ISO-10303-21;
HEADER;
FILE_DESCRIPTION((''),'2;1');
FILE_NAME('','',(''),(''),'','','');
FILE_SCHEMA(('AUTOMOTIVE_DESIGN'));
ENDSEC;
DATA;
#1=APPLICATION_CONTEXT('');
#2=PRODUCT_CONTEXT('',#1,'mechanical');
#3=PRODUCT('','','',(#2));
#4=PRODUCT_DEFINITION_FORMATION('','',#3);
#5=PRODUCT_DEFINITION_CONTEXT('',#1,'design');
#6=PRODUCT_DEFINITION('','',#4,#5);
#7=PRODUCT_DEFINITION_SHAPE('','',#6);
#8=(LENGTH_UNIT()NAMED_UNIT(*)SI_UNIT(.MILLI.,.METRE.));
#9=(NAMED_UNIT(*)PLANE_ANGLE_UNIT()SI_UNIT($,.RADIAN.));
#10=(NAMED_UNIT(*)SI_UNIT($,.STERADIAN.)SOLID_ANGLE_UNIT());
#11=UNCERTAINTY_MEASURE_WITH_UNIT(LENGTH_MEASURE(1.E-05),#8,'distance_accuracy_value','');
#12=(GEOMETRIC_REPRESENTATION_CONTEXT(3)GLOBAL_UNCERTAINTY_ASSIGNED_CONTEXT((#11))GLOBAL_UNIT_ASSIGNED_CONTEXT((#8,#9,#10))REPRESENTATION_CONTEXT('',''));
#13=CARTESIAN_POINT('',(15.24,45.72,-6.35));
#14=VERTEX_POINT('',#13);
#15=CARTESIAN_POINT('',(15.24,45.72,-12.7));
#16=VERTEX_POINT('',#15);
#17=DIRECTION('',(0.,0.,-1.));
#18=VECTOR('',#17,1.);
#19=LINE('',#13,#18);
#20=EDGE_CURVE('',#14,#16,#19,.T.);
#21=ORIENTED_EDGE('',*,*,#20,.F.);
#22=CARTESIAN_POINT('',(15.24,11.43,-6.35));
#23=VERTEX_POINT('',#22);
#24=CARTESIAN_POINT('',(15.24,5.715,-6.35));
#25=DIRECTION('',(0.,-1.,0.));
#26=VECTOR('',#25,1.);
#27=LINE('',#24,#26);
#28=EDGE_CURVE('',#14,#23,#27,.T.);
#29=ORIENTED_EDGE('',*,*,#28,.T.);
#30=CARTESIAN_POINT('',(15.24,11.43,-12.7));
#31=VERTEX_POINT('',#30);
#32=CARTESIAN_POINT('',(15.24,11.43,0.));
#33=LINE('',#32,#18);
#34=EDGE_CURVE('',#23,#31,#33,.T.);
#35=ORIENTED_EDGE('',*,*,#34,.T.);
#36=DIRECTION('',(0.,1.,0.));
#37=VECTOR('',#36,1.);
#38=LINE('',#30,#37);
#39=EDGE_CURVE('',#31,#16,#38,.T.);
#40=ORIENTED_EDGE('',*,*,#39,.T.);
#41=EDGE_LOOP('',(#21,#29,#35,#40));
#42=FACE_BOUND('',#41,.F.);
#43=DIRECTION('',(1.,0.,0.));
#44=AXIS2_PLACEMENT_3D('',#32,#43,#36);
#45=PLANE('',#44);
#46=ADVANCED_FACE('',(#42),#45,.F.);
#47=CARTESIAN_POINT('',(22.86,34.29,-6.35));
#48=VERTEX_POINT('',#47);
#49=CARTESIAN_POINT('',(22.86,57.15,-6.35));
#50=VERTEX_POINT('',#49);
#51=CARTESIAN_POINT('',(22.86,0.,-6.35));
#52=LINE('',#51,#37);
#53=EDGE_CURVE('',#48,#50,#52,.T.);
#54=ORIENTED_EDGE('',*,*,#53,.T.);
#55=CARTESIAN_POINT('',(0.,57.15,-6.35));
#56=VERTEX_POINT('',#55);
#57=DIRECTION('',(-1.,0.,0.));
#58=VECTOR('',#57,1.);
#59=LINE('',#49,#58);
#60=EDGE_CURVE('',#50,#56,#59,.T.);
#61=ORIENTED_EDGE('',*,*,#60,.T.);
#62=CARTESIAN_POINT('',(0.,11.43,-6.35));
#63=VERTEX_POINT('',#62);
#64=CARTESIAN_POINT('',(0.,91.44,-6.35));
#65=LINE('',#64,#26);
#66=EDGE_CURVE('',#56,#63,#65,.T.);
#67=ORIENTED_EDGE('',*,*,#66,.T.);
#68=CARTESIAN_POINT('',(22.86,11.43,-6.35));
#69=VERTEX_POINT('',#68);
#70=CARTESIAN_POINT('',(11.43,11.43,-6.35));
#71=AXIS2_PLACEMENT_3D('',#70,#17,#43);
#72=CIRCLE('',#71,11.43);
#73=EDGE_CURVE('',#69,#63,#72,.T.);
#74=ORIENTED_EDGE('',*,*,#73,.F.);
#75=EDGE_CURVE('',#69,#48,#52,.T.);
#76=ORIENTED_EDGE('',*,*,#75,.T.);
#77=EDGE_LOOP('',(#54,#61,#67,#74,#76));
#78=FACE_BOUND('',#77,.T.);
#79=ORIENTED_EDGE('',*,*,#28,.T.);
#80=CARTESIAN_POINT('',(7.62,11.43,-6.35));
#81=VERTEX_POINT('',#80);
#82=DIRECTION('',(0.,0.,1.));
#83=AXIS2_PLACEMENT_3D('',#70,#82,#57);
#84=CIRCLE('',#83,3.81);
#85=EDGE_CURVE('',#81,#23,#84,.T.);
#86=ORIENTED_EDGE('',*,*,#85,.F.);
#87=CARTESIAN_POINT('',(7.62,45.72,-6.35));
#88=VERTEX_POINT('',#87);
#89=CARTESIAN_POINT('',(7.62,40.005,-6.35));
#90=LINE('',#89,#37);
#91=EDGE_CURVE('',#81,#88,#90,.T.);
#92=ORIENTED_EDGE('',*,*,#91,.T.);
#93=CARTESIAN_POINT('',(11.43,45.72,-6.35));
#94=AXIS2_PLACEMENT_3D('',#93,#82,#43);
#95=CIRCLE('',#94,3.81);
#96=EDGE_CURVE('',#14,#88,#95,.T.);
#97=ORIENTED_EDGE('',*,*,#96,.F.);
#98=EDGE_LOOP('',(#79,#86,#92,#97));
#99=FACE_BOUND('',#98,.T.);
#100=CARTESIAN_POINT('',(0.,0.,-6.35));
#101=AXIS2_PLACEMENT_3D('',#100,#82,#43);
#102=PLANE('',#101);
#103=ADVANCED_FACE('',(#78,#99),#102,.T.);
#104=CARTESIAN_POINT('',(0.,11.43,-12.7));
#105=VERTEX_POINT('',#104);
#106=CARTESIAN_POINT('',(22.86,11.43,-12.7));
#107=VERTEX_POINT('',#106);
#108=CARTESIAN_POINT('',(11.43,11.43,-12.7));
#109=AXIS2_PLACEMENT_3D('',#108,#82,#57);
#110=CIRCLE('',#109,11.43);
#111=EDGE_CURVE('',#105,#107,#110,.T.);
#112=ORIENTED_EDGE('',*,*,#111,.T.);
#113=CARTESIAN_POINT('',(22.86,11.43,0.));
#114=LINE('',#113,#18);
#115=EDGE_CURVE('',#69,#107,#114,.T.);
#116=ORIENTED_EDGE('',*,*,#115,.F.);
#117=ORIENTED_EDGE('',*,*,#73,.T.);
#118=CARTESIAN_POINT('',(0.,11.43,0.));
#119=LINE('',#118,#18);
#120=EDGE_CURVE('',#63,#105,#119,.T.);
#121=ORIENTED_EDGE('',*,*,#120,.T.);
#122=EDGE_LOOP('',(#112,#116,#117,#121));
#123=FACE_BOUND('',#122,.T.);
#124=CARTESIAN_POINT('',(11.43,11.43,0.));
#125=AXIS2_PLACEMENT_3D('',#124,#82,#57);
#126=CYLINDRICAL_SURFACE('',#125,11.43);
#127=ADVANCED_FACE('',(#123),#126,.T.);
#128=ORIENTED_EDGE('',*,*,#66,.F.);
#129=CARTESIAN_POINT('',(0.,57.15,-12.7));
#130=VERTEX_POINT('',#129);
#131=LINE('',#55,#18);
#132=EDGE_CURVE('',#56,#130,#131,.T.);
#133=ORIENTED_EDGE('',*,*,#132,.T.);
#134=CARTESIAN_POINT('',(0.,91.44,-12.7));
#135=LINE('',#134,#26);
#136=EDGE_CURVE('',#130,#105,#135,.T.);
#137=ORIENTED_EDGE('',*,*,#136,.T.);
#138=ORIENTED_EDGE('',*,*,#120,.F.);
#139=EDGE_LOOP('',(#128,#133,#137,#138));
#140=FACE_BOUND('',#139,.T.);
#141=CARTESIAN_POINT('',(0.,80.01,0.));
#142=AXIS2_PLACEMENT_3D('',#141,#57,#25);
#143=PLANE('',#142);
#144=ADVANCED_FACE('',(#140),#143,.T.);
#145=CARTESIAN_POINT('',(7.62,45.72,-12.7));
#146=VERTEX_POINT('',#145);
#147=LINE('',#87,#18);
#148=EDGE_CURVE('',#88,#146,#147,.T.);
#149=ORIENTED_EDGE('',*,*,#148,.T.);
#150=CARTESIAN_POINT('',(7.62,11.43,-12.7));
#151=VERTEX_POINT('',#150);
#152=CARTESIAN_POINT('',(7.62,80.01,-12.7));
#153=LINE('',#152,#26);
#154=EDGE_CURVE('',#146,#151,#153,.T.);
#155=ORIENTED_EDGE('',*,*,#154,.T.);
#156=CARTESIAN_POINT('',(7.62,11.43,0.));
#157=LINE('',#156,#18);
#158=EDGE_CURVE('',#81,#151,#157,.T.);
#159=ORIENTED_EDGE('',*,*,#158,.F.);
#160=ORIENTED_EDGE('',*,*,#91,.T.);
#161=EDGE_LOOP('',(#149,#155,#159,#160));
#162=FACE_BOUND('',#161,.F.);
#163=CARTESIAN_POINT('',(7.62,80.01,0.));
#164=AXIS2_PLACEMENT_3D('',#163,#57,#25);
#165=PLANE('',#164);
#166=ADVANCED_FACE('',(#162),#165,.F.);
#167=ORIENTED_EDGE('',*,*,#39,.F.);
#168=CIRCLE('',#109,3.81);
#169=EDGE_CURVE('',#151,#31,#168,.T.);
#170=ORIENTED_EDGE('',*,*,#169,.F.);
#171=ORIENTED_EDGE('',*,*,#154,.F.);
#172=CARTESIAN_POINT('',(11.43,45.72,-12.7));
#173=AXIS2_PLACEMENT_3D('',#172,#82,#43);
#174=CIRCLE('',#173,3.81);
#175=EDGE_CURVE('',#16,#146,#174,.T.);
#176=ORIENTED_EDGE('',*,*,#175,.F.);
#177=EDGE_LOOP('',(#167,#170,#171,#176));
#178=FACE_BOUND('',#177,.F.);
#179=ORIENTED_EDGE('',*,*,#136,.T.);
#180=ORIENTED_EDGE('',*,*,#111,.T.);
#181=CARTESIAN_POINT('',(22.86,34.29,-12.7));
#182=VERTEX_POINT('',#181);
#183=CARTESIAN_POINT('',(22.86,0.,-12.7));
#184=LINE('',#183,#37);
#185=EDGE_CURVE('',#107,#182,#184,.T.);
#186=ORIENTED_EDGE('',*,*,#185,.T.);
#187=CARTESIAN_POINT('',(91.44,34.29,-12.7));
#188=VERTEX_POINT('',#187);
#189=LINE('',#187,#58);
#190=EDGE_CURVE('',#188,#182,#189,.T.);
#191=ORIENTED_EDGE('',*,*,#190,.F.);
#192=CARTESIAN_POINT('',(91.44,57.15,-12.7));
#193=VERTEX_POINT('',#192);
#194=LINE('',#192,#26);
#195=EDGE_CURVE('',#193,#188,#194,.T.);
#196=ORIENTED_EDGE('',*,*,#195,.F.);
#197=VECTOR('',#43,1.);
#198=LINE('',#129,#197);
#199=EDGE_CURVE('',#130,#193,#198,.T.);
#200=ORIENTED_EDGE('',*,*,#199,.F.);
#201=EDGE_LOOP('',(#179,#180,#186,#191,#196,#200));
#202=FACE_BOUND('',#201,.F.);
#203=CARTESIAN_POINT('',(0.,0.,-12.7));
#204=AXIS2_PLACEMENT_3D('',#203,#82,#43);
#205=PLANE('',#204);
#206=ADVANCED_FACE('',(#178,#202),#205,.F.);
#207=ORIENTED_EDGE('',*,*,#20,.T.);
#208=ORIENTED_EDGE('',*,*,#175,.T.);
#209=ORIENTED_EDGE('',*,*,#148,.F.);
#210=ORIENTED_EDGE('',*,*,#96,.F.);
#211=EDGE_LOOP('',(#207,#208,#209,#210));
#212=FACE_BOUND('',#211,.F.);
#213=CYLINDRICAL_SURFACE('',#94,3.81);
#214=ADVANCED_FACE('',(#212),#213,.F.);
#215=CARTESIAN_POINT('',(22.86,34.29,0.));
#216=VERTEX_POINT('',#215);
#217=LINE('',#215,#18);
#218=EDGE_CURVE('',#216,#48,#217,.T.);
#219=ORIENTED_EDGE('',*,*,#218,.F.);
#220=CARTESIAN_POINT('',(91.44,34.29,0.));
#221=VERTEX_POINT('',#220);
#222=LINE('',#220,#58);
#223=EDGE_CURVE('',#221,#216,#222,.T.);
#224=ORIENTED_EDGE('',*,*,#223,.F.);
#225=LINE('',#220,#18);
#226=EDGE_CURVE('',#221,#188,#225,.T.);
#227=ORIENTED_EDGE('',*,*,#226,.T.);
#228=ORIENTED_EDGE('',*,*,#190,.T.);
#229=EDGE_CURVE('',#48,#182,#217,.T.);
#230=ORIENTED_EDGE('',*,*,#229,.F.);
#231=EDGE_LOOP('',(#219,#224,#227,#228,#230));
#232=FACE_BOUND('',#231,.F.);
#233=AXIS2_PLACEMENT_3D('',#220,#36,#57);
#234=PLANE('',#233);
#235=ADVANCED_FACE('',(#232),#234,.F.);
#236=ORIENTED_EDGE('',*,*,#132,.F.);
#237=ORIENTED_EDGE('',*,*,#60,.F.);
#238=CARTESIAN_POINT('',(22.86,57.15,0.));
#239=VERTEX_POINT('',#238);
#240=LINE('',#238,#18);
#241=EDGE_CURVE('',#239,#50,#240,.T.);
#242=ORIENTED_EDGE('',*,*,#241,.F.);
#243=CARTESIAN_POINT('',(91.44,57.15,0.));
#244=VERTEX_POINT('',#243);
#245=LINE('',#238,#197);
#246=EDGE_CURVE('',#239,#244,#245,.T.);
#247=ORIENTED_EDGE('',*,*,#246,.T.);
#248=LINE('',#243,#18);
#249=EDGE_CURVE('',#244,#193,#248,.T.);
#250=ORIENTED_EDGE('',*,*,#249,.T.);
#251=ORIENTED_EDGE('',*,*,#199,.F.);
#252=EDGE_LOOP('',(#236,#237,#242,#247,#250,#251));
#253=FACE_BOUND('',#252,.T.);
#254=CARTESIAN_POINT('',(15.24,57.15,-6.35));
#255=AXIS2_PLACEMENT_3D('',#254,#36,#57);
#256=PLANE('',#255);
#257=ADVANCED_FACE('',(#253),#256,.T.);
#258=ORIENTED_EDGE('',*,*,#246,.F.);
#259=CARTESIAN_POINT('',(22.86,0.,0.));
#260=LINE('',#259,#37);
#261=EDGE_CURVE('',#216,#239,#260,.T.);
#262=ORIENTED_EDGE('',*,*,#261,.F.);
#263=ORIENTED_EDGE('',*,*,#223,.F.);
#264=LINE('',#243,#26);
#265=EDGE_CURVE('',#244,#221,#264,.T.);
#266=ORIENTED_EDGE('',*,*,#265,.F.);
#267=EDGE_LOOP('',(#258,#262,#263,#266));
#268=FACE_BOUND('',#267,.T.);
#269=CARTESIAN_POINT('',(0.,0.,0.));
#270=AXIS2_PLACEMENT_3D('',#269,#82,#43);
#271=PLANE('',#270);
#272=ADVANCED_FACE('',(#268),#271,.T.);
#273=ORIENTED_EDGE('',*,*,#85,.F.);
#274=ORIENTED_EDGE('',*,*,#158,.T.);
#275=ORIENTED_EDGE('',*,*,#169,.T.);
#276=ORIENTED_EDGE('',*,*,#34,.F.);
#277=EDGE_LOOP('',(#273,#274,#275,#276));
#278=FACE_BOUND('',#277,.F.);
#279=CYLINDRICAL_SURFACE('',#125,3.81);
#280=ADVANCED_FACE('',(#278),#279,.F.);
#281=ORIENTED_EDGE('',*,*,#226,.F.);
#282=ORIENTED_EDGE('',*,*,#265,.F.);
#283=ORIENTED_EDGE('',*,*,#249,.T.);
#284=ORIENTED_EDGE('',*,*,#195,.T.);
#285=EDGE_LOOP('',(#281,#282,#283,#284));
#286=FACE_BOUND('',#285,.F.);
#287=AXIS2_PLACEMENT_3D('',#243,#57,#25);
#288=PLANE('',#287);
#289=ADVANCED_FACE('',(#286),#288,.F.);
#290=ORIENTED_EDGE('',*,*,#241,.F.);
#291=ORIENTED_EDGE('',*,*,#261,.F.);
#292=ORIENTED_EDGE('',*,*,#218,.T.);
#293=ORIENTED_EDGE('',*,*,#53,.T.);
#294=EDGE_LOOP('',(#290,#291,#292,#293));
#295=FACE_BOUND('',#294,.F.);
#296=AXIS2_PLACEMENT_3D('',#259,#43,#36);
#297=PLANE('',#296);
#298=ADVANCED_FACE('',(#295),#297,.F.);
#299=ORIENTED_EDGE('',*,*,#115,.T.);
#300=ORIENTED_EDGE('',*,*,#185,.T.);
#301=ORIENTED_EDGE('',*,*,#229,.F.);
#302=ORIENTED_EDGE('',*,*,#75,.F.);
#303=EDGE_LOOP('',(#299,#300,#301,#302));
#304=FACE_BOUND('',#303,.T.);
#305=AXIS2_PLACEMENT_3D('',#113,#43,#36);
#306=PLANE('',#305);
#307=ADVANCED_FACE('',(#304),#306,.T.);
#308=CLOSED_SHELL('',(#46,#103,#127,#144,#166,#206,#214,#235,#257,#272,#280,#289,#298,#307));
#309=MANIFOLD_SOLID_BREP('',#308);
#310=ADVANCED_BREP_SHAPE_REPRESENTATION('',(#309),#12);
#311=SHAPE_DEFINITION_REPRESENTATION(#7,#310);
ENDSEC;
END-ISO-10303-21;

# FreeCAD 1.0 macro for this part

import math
import FreeCAD as App
import Part
import Sketcher
from FreeCAD import Vector
Q = App.Units.Quantity

doc = App.newDocument("Part")
params = doc.addObject("Spreadsheet::Sheet", "Params")
for row, (alias, value) in enumerate([
    ("sketch1_radius", "0.45 in"),
    ("sketch1_radius2", "0.15 in"),
    ("sketch1_width", "2.7 in"),
    ("pad1_length", "0.5 in"),
    ("sketch2_radius", "0.45 in"),
    ("sketch2_height", "3.15 in"),
    ("pocket1_length", "0.25 in"),
    ("sketch3_radius", "0.45 in"),
    ("pocket2_length", "3.5 in"),
    ("sketch4_radius", "0.15 in"),
    ("sketch4_height", "0.45 in"),
    ("pad2_length", "0.25 in"),
], start=1):
    params.set(f"A{row}", alias)
    params.set(f"B{row}", "=" + value)
    params.setAlias(f"B{row}", alias)

body = doc.addObject("PartDesign::Body", "Body")

# Sketch on XY plane
sketch1 = body.newObject("Sketcher::SketchObject", "Sketch")
sketch1.AttachmentSupport = (doc.getObject("XY_Plane"), [""])
sketch1.MapMode = "FlatFace"
sketch1.addGeometry([
    Part.ArcOfCircle(Part.Circle(Vector(11.43, 11.43, 0), Vector(0, 0, 1), 11.43), math.radians(180), math.radians(360)),  # 0
    Part.LineSegment(Vector(22.86, 11.43, 0), Vector(22.86, 34.29, 0)),  # 1
    Part.LineSegment(Vector(22.86, 34.29, 0), Vector(91.44, 34.29, 0)),  # 2
    Part.LineSegment(Vector(91.44, 34.29, 0), Vector(91.44, 57.15, 0)),  # 3
    Part.LineSegment(Vector(91.44, 57.15, 0), Vector(22.86, 57.15, 0)),  # 4
    Part.LineSegment(Vector(22.86, 57.15, 0), Vector(22.86, 80.01, 0)),  # 5
    Part.ArcOfCircle(Part.Circle(Vector(11.43, 80.01, 0), Vector(0, 0, 1), 11.43), math.radians(0), math.radians(180)),  # 6
    Part.LineSegment(Vector(0, 80.01, 0), Vector(0, 11.43, 0)),  # 7
    Part.LineSegment(Vector(7.62, 11.43, 0), Vector(7.62, 80.01, 0)),  # 8
    Part.ArcOfCircle(Part.Circle(Vector(11.43, 80.01, 0), Vector(0, 0, 1), 3.81), math.radians(0), math.radians(180)),  # 9
    Part.LineSegment(Vector(15.24, 80.01, 0), Vector(15.24, 11.43, 0)),  # 10
    Part.ArcOfCircle(Part.Circle(Vector(11.43, 11.43, 0), Vector(0, 0, 1), 3.81), math.radians(180), math.radians(360)),  # 11
], False)
sketch1.addConstraint([
    Sketcher.Constraint("Tangent", 0, 2, 1, 1),
    Sketcher.Constraint("Coincident", 1, 2, 2, 1),
    Sketcher.Constraint("Coincident", 2, 2, 3, 1),
    Sketcher.Constraint("Coincident", 3, 2, 4, 1),
    Sketcher.Constraint("Coincident", 4, 2, 5, 1),
    Sketcher.Constraint("Tangent", 5, 2, 6, 1),
    Sketcher.Constraint("Tangent", 6, 2, 7, 1),
    Sketcher.Constraint("Tangent", 7, 2, 0, 1),
    Sketcher.Constraint("Tangent", 8, 2, 9, 2),
    Sketcher.Constraint("Tangent", 9, 1, 10, 1),
    Sketcher.Constraint("Tangent", 10, 2, 11, 2),
    Sketcher.Constraint("Tangent", 11, 1, 8, 1),
    Sketcher.Constraint("Vertical", 1),
    Sketcher.Constraint("Horizontal", 2),
    Sketcher.Constraint("Vertical", 3),
    Sketcher.Constraint("Horizontal", 4),
    Sketcher.Constraint("Vertical", 5),
    Sketcher.Constraint("Vertical", 7),
    Sketcher.Constraint("Vertical", 8),
    Sketcher.Constraint("Vertical", 10),
    Sketcher.Constraint("Coincident", 9, 3, 6, 3),
    Sketcher.Constraint("Coincident", 11, 3, 0, 3),
    Sketcher.Constraint("PointOnObject", 6, 2, -2),
    Sketcher.Constraint("Equal", 1, 3),
    Sketcher.Constraint("Equal", 3, 5),
    Sketcher.Constraint("Equal", 4, 7),
    Sketcher.Constraint("Radius", 0, Q("0.45 in")),
    Sketcher.Constraint("Radius", 9, Q("0.15 in")),
    Sketcher.Constraint("DistanceX", 2, 1, 2, 2, Q("2.7 in")),
    Sketcher.Constraint("DistanceY", -1, 1, 0, 3, Q("0.45 in")),
])
sketch1.setExpression("Constraints[26]", "Params.sketch1_radius")
sketch1.setExpression("Constraints[27]", "Params.sketch1_radius2")
sketch1.setExpression("Constraints[28]", "Params.sketch1_width")
pad1 = body.newObject("PartDesign::Pad", "Pad")
pad1.Profile = sketch1
pad1.setExpression("Length", "Params.pad1_length")
pad1.Reversed = True

# Sketch on XY plane
sketch2 = body.newObject("Sketcher::SketchObject", "Sketch001")
sketch2.AttachmentSupport = (doc.getObject("XY_Plane"), [""])
sketch2.MapMode = "FlatFace"
sketch2.addGeometry([
    Part.LineSegment(Vector(0, 80.01, 0), Vector(0, 0, 0)),
    Part.LineSegment(Vector(0, 0, 0), Vector(22.86, 0, 0)),
    Part.LineSegment(Vector(22.86, 0, 0), Vector(22.86, 80.01, 0)),
    Part.ArcOfCircle(Part.Circle(Vector(11.43, 80.01, 0), Vector(0, 0, 1), 11.43), math.radians(0), math.radians(180)),
], False)
sketch2.addConstraint([
    Sketcher.Constraint("Coincident", 0, 2, 1, 1),
    Sketcher.Constraint("Coincident", 1, 2, 2, 1),
    Sketcher.Constraint("Tangent", 2, 2, 3, 1),
    Sketcher.Constraint("Tangent", 3, 2, 0, 1),
    Sketcher.Constraint("Vertical", 0),
    Sketcher.Constraint("Horizontal", 1),
    Sketcher.Constraint("Vertical", 2),
    Sketcher.Constraint("Coincident", 0, 2, -1, 1),
    Sketcher.Constraint("Radius", 3, Q("0.45 in")),
    Sketcher.Constraint("DistanceY", 0, 2, 0, 1, Q("3.15 in")),
])
sketch2.setExpression("Constraints[8]", "Params.sketch2_radius")
sketch2.setExpression("Constraints[9]", "Params.sketch2_height")
pocket1 = body.newObject("PartDesign::Pocket", "Pocket")
pocket1.Profile = sketch2
pocket1.setExpression("Length", "Params.pocket1_length")

# Sketch on XY plane
sketch3 = body.newObject("Sketcher::SketchObject", "Sketch002")
sketch3.AttachmentSupport = (doc.getObject("XY_Plane"), [""])
sketch3.MapMode = "FlatFace"
sketch3.AttachmentOffset = App.Placement(Vector(0, 0, -0.25 * 25.4), App.Rotation())
sketch3.addGeometry([
    Part.LineSegment(Vector(0, 57.15, 0), Vector(22.86, 57.15, 0)),
    Part.LineSegment(Vector(22.86, 57.15, 0), Vector(22.86, 80.01, 0)),
    Part.ArcOfCircle(Part.Circle(Vector(11.43, 80.01, 0), Vector(0, 0, 1), 11.43), math.radians(0), math.radians(180)),
    Part.LineSegment(Vector(0, 80.01, 0), Vector(0, 57.15, 0)),
], False)
sketch3.addConstraint([
    Sketcher.Constraint("Coincident", 0, 2, 1, 1),
    Sketcher.Constraint("Tangent", 1, 2, 2, 1),
    Sketcher.Constraint("Tangent", 2, 2, 3, 1),
    Sketcher.Constraint("Coincident", 3, 2, 0, 1),
    Sketcher.Constraint("Horizontal", 0),
    Sketcher.Constraint("Vertical", 1),
    Sketcher.Constraint("Vertical", 3),
    Sketcher.Constraint("PointOnObject", 2, 2, -2),
    Sketcher.Constraint("Equal", 0, 1),
    Sketcher.Constraint("Radius", 2, Q("0.45 in")),
    Sketcher.Constraint("DistanceY", -1, 1, 2, 3, Q("3.15 in")),
])
sketch3.setExpression("Constraints[9]", "Params.sketch3_radius")
pocket2 = body.newObject("PartDesign::Pocket", "Pocket001")
pocket2.Profile = sketch3
pocket2.setExpression("Length", "Params.pocket2_length")

# Sketch on XY plane
sketch4 = body.newObject("Sketcher::SketchObject", "Sketch003")
sketch4.AttachmentSupport = (doc.getObject("XY_Plane"), [""])
sketch4.MapMode = "FlatFace"
sketch4.AttachmentOffset = App.Placement(Vector(0, 0, -0.25 * 25.4), App.Rotation())
sketch4.addGeometry([
    Part.LineSegment(Vector(15.24, 45.72, 0), Vector(15.24, 57.15, 0)),
    Part.LineSegment(Vector(15.24, 57.15, 0), Vector(7.62, 57.15, 0)),
    Part.LineSegment(Vector(7.62, 57.15, 0), Vector(7.62, 45.72, 0)),
    Part.ArcOfCircle(Part.Circle(Vector(11.43, 45.72, 0), Vector(0, 0, 1), 3.81), math.radians(0), math.radians(180)),
], False)
sketch4.addConstraint([
    Sketcher.Constraint("Coincident", 0, 2, 1, 1),
    Sketcher.Constraint("Coincident", 1, 2, 2, 1),
    Sketcher.Constraint("Tangent", 2, 2, 3, 2),
    Sketcher.Constraint("Tangent", 3, 1, 0, 1),
    Sketcher.Constraint("Vertical", 0),
    Sketcher.Constraint("Horizontal", 1),
    Sketcher.Constraint("Vertical", 2),
    Sketcher.Constraint("Radius", 3, Q("0.15 in")),
    Sketcher.Constraint("DistanceX", -1, 1, 0, 2, Q("0.6 in")),
    Sketcher.Constraint("DistanceY", 0, 1, 0, 2, Q("0.45 in")),
    Sketcher.Constraint("DistanceY", -1, 1, 3, 3, Q("1.8 in")),
])
sketch4.setExpression("Constraints[7]", "Params.sketch4_radius")
sketch4.setExpression("Constraints[9]", "Params.sketch4_height")
pad2 = body.newObject("PartDesign::Pad", "Pad001")
pad2.Profile = sketch4
pad2.setExpression("Length", "Params.pad2_length")
pad2.Reversed = True

doc.recompute()
